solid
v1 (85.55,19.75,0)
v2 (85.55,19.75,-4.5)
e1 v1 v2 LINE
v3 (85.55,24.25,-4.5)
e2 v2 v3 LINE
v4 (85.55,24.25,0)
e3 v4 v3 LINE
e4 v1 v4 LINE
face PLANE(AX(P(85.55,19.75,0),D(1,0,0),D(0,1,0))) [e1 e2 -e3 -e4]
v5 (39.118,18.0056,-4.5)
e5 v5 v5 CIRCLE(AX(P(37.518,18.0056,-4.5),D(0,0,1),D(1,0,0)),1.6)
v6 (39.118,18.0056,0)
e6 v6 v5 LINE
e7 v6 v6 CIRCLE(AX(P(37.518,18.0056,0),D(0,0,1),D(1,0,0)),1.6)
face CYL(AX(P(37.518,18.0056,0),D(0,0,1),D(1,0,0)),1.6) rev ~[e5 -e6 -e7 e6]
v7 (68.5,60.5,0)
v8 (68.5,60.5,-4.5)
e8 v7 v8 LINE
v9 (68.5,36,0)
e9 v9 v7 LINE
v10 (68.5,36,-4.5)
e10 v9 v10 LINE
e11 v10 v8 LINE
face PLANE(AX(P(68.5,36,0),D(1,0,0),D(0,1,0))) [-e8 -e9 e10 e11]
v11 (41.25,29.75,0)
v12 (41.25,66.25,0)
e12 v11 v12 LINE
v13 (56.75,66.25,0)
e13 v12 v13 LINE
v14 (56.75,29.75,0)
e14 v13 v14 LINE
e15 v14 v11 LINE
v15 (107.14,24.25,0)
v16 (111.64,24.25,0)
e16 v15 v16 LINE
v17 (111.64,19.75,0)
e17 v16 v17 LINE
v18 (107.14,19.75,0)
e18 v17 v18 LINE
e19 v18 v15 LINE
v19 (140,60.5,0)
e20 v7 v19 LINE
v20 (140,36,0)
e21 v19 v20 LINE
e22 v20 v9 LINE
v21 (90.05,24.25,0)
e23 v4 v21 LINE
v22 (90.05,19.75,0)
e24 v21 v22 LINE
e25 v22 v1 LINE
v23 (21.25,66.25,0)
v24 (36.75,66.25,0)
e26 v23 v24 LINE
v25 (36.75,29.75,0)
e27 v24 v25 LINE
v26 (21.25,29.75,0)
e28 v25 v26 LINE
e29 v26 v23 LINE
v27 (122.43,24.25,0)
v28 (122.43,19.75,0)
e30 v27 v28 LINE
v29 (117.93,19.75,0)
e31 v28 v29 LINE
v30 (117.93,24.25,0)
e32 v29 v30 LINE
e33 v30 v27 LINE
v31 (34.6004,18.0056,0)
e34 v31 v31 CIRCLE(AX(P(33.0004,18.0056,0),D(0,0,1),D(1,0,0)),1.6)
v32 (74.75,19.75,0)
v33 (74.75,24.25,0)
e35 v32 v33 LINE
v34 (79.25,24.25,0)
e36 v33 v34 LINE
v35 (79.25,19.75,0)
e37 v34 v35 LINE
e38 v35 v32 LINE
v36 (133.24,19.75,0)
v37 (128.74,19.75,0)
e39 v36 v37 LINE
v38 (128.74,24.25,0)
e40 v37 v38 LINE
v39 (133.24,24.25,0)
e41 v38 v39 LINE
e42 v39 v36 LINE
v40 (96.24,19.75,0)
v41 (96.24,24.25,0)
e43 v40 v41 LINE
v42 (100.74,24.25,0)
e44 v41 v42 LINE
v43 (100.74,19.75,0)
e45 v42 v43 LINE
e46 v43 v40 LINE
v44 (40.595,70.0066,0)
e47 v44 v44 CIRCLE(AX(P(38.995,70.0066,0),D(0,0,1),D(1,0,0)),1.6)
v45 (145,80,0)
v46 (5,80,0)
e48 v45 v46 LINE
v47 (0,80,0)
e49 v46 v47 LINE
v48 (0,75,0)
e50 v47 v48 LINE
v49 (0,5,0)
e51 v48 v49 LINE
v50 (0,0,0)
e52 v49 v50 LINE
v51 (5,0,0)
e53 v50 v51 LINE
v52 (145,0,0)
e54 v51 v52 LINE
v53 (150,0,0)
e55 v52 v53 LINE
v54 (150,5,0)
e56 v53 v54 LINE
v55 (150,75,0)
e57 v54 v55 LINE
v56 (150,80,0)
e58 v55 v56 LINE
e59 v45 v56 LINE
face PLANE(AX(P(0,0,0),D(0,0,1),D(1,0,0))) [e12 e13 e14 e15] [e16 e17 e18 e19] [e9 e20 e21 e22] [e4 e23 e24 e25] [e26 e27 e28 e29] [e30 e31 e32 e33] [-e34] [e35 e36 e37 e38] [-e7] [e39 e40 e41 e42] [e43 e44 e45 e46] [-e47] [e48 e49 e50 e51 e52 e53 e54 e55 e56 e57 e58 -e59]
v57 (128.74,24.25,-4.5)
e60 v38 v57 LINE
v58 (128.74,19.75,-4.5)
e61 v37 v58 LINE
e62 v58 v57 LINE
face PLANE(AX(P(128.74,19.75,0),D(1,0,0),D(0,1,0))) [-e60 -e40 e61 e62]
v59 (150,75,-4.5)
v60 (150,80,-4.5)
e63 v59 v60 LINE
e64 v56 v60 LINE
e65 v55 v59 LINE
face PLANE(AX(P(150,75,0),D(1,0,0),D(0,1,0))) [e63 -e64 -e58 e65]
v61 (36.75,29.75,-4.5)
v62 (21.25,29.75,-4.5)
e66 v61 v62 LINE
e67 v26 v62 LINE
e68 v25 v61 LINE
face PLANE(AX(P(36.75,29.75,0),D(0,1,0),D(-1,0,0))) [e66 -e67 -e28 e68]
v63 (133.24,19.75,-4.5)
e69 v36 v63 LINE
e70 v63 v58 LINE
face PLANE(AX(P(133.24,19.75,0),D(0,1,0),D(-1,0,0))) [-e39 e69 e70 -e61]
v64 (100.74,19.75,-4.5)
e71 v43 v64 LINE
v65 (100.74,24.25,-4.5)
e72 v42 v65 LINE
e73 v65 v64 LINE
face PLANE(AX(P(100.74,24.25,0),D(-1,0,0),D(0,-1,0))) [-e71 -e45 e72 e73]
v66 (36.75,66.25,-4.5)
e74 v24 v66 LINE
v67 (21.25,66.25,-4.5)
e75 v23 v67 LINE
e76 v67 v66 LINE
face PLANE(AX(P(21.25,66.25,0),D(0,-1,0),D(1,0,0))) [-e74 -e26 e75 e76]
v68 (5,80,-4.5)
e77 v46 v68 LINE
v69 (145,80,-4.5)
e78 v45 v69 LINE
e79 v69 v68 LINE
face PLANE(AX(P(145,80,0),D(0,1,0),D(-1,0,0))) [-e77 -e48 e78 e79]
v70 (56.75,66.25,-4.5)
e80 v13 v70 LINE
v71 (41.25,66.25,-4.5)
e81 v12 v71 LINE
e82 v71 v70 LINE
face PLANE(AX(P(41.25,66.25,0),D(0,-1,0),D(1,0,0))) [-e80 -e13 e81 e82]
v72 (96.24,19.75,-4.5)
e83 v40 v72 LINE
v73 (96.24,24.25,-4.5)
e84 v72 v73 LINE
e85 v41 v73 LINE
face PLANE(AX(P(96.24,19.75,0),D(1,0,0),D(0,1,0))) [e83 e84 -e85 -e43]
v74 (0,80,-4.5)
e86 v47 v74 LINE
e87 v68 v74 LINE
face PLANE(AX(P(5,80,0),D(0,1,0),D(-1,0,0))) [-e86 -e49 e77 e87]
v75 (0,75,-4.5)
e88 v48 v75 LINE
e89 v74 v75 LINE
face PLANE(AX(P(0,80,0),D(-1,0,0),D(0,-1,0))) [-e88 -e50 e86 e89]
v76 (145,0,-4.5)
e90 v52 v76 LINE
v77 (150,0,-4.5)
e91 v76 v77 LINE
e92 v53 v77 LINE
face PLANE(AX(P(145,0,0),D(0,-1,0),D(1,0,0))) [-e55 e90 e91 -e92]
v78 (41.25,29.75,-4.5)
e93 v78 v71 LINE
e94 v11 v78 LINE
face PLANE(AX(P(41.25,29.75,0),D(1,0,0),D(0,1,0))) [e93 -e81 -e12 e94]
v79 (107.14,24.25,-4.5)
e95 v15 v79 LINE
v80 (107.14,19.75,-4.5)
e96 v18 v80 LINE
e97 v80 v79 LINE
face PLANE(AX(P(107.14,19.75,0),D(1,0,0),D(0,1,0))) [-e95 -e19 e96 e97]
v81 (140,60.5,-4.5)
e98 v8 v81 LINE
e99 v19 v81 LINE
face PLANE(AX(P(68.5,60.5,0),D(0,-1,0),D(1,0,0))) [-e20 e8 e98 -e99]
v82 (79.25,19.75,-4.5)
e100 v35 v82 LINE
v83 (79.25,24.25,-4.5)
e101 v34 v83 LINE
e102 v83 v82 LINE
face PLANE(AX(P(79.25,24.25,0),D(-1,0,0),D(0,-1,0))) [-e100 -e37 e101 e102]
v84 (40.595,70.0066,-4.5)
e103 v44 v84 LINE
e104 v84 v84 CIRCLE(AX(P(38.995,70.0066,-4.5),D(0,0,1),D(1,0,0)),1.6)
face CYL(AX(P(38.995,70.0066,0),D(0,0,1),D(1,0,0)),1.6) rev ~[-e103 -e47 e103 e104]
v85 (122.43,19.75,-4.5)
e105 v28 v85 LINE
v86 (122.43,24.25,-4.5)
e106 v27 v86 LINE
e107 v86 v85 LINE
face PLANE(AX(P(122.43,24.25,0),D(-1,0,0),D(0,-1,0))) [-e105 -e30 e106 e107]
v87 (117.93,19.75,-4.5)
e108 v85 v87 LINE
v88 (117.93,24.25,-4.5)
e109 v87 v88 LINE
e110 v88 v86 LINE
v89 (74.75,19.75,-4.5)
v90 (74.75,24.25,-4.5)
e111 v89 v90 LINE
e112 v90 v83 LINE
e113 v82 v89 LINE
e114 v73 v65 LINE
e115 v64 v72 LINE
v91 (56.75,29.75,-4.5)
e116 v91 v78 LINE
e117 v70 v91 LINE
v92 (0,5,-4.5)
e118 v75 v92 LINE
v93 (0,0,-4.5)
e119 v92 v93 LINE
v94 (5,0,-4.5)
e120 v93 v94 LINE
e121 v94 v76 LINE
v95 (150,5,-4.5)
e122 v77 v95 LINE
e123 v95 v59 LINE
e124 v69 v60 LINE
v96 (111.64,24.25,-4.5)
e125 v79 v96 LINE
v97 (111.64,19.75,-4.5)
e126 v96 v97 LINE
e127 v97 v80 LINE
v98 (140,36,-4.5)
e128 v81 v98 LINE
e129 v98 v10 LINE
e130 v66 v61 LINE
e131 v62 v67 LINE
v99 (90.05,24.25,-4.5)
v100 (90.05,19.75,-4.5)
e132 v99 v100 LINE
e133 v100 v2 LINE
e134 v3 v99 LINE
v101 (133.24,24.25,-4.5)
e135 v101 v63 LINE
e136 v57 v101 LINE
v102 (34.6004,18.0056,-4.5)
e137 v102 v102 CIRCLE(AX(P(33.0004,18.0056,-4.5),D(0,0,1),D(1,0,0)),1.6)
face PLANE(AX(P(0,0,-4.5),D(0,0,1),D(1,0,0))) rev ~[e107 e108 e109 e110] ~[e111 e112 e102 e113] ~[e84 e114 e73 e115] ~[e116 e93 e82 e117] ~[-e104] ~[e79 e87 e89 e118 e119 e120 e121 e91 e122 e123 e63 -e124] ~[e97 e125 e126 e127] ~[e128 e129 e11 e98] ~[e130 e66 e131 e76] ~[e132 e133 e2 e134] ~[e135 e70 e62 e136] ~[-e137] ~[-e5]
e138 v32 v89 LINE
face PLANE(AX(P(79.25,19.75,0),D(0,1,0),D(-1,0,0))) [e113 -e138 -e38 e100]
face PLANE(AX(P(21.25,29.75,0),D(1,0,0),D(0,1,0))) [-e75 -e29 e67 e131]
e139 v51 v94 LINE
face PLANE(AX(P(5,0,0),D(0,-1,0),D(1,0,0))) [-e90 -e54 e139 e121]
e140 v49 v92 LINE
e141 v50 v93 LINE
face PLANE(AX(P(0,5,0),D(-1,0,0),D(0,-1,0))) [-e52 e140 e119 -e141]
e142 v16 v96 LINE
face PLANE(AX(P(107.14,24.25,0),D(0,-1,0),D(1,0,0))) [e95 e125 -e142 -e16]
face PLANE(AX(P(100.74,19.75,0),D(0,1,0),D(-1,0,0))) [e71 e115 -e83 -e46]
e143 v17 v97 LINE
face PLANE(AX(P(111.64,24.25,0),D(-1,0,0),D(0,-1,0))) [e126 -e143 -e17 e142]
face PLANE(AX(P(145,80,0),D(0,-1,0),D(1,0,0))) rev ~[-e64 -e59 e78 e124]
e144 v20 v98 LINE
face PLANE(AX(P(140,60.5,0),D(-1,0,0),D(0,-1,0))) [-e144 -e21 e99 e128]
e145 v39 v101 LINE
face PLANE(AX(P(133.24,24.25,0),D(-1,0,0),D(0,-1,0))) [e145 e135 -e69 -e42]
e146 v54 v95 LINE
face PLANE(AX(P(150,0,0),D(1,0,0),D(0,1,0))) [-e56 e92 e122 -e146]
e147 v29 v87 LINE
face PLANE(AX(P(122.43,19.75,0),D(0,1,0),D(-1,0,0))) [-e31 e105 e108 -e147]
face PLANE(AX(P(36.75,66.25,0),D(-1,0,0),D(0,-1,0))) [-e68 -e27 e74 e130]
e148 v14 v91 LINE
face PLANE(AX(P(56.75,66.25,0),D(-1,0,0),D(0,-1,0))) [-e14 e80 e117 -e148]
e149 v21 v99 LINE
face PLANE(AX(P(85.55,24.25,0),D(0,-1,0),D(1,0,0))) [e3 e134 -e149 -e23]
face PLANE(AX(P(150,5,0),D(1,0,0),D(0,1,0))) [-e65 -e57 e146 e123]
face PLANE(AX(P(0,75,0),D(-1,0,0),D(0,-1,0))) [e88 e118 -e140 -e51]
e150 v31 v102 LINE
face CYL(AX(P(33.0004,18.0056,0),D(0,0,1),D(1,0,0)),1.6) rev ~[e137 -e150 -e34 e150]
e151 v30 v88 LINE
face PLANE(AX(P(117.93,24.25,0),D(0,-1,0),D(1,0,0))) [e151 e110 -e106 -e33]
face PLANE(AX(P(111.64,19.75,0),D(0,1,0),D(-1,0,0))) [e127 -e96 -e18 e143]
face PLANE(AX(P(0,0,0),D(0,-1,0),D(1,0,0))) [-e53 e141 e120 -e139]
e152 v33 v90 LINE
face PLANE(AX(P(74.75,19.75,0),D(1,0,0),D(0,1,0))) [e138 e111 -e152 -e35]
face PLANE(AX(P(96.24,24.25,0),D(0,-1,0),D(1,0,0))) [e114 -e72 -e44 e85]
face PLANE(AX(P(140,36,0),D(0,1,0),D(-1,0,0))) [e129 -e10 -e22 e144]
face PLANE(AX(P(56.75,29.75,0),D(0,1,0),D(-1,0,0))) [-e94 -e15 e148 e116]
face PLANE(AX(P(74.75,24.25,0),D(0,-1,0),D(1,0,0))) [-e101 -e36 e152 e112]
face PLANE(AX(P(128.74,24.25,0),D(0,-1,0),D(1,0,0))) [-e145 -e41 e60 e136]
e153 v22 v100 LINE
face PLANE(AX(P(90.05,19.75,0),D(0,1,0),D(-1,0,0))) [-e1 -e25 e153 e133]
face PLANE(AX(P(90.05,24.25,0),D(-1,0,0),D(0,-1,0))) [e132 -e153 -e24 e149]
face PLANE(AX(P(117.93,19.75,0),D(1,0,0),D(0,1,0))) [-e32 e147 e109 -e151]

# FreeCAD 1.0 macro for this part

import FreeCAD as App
import Part
import Sketcher

V = App.Vector
Q = App.Units.Quantity


def add_polygon(sketch, points):
    """Adds a closed chain of lines whose ends are joined by coincident constraints."""
    first, n = sketch.GeometryCount, len(points)
    for a, b in zip(points, points[1:] + points[:1]):
        sketch.addGeometry(Part.LineSegment(App.Vector(*a, 0), App.Vector(*b, 0)), False)
    for i in range(n):
        sketch.addConstraint(Sketcher.Constraint("Coincident", first + i, 2, first + (i + 1) % n, 1))

doc = App.newDocument("Part")
params = doc.addObject("Spreadsheet::Sheet", "Params")
for row, (alias, value) in enumerate([
    ("sketch1_diameter", "3.2 mm"),
    ("sketch1_width", "150 mm"),
    ("sketch1_height", "80 mm"),
    ("sketch1_width2", "4.5 mm"),
    ("sketch1_width3", "15.5 mm"),
    ("pad1_length", "4.5 mm"),
], start=1):
    params.set(f"A{row}", alias)
    params.set(f"B{row}", "=" + value)
    params.setAlias(f"B{row}", alias)

body = doc.addObject("PartDesign::Body", "Body")

sketch1 = body.newObject("Sketcher::SketchObject", "Sketch")
sketch1.AttachmentSupport = (doc.getObject("XY_Plane"), [""])
sketch1.MapMode = "FlatFace"
add_polygon(sketch1, [(0, 80), (0, 0), (150, 0), (150, 80)])
sketch1.addGeometry(Part.Circle(V(33, 18, 0), V(0, 0, 1), 1.6), False)
sketch1.addGeometry(Part.Circle(V(37.5, 18, 0), V(0, 0, 1), 1.6), False)
add_polygon(sketch1, [(79.2, 19.8), (74.8, 19.8), (74.8, 24.2), (79.2, 24.2)])
add_polygon(sketch1, [(90, 24.2), (90, 19.8), (85.5, 19.8), (85.5, 24.2)])
add_polygon(sketch1, [(100.7, 19.8), (96.2, 19.8), (96.2, 24.2), (100.7, 24.2)])
add_polygon(sketch1, [(111.6, 19.8), (107.1, 19.8), (107.1, 24.2), (111.6, 24.2)])
add_polygon(sketch1, [(122.4, 19.8), (117.9, 19.8), (117.9, 24.2), (122.4, 24.2)])
add_polygon(sketch1, [(133.2, 19.8), (128.7, 19.8), (128.7, 24.2), (133.2, 24.2)])
add_polygon(sketch1, [(36.8, 29.8), (21.2, 29.8), (21.2, 66.2), (36.8, 66.2)])
add_polygon(sketch1, [(56.8, 29.8), (41.2, 29.8), (41.2, 66.2), (56.8, 66.2)])
sketch1.addGeometry(Part.Circle(V(39, 70, 0), V(0, 0, 1), 1.6), False)
add_polygon(sketch1, [(140, 60.5), (140, 36), (68.5, 36), (68.5, 60.5)])
sketch1.addConstraint([
    Sketcher.Constraint("Vertical", 0),
    Sketcher.Constraint("Horizontal", 1),
    Sketcher.Constraint("Vertical", 2),
    Sketcher.Constraint("Horizontal", 3),
    Sketcher.Constraint("Horizontal", 6),
    Sketcher.Constraint("Vertical", 7),
    Sketcher.Constraint("Horizontal", 8),
    Sketcher.Constraint("Vertical", 9),
    Sketcher.Constraint("Vertical", 10),
    Sketcher.Constraint("Horizontal", 11),
    Sketcher.Constraint("Vertical", 12),
    Sketcher.Constraint("Horizontal", 13),
    Sketcher.Constraint("Horizontal", 14),
    Sketcher.Constraint("Vertical", 15),
    Sketcher.Constraint("Horizontal", 16),
    Sketcher.Constraint("Vertical", 17),
    Sketcher.Constraint("Horizontal", 18),
    Sketcher.Constraint("Vertical", 19),
    Sketcher.Constraint("Horizontal", 20),
    Sketcher.Constraint("Vertical", 21),
    Sketcher.Constraint("Horizontal", 22),
    Sketcher.Constraint("Vertical", 23),
    Sketcher.Constraint("Horizontal", 24),
    Sketcher.Constraint("Vertical", 25),
    Sketcher.Constraint("Horizontal", 26),
    Sketcher.Constraint("Vertical", 27),
    Sketcher.Constraint("Horizontal", 28),
    Sketcher.Constraint("Vertical", 29),
    Sketcher.Constraint("Horizontal", 30),
    Sketcher.Constraint("Vertical", 31),
    Sketcher.Constraint("Horizontal", 32),
    Sketcher.Constraint("Vertical", 33),
    Sketcher.Constraint("Horizontal", 34),
    Sketcher.Constraint("Vertical", 35),
    Sketcher.Constraint("Horizontal", 36),
    Sketcher.Constraint("Vertical", 37),
    Sketcher.Constraint("Vertical", 39),
    Sketcher.Constraint("Horizontal", 40),
    Sketcher.Constraint("Vertical", 41),
    Sketcher.Constraint("Horizontal", 42),
    Sketcher.Constraint("Coincident", 0, 2, -1, 1),
    Sketcher.Constraint("Equal", 4, 5),
    Sketcher.Constraint("Equal", 5, 38),
    Sketcher.Constraint("Horizontal", 4, 3, 5, 3),
    Sketcher.Constraint("Horizontal", 9, 2, 10, 2),
    Sketcher.Constraint("Horizontal", 8, 2, 12, 2),
    Sketcher.Constraint("Horizontal", 11, 2, 14, 2),
    Sketcher.Constraint("Horizontal", 13, 2, 15, 2),
    Sketcher.Constraint("Horizontal", 17, 2, 18, 2),
    Sketcher.Constraint("Horizontal", 16, 2, 19, 2),
    Sketcher.Constraint("Horizontal", 21, 2, 22, 2),
    Sketcher.Constraint("Horizontal", 20, 2, 23, 2),
    Sketcher.Constraint("Horizontal", 25, 2, 26, 2),
    Sketcher.Constraint("Horizontal", 24, 2, 27, 2),
    Sketcher.Constraint("Horizontal", 33, 2, 34, 2),
    Sketcher.Constraint("Horizontal", 32, 2, 35, 2),
    Sketcher.Constraint("Equal", 8, 11),
    Sketcher.Constraint("Equal", 13, 14),
    Sketcher.Constraint("Equal", 16, 18),
    Sketcher.Constraint("Equal", 20, 22),
    Sketcher.Constraint("Equal", 24, 26),
    Sketcher.Constraint("Equal", 32, 34),
    Sketcher.Constraint("Equal", 28, 7),
    Sketcher.Constraint("Diameter", 4, Q("3.2 mm")),
    Sketcher.Constraint("DistanceX", 1, 1, 1, 2, Q("150 mm")),
    Sketcher.Constraint("DistanceY", 0, 2, 0, 1, Q("80 mm")),
    Sketcher.Constraint("DistanceX", 6, 2, 6, 1, Q("4.5 mm")),
    Sketcher.Constraint("DistanceX", 30, 2, 30, 1, Q("15.5 mm")),
    Sketcher.Constraint("DistanceX", 40, 2, 40, 1, Q("71.5 mm")),
    Sketcher.Constraint("DistanceY", 31, 1, 31, 2, Q("36.5 mm")),
    Sketcher.Constraint("DistanceY", 39, 2, 39, 1, Q("24.5 mm")),
    Sketcher.Constraint("DistanceX", -1, 1, 39, 2, Q("140 mm")),
    Sketcher.Constraint("DistanceY", -1, 1, 39, 2, Q("36 mm")),
    Sketcher.Constraint("DistanceX", 33, 2, 7, 2, Q("38 mm")),
    Sketcher.Constraint("DistanceX", 30, 2, 34, 2, Q("20 mm")),
    Sketcher.Constraint("DistanceY", 6, 2, 37, 2, Q("10 mm")),
    Sketcher.Constraint("DistanceX", 9, 2, 10, 2, Q("10.8 mm")),
    Sketcher.Constraint("DistanceX", 17, 2, 18, 2, Q("6.4 mm")),
    Sketcher.Constraint("DistanceX", 21, 2, 26, 2, Q("17.1 mm")),
    Sketcher.Constraint("DistanceX", -1, 1, 6, 2, Q("74.75 mm")),
    Sketcher.Constraint("DistanceY", -1, 1, 6, 2, Q("19.75 mm")),
    Sketcher.Constraint("DistanceX", -1, 1, 14, 2, Q("96.24 mm")),
    Sketcher.Constraint("DistanceX", -1, 1, 22, 2, Q("117.93 mm")),
    Sketcher.Constraint("DistanceX", -1, 1, 5, 3, Q("37.518 mm")),
    Sketcher.Constraint("DistanceX", -1, 1, 38, 3, Q("38.995 mm")),
    Sketcher.Constraint("DistanceY", 5, 3, 38, 3, Q("52.001 mm")),
    Sketcher.Constraint("DistanceX", -1, 1, 4, 3, Q("33.0004 mm")),
    Sketcher.Constraint("DistanceY", -1, 1, 4, 3, Q("18.0056 mm")),
])
sketch1.setExpression("Constraints[103]", "Params.sketch1_diameter")
sketch1.setExpression("Constraints[104]", "Params.sketch1_width")
sketch1.setExpression("Constraints[105]", "Params.sketch1_height")
sketch1.setExpression("Constraints[106]", "Params.sketch1_width2")
sketch1.setExpression("Constraints[107]", "Params.sketch1_width3")
pad1 = body.newObject("PartDesign::Pad", "Pad")
pad1.Profile = sketch1
pad1.setExpression("Length", "Params.pad1_length")
pad1.Reversed = True

doc.recompute()
